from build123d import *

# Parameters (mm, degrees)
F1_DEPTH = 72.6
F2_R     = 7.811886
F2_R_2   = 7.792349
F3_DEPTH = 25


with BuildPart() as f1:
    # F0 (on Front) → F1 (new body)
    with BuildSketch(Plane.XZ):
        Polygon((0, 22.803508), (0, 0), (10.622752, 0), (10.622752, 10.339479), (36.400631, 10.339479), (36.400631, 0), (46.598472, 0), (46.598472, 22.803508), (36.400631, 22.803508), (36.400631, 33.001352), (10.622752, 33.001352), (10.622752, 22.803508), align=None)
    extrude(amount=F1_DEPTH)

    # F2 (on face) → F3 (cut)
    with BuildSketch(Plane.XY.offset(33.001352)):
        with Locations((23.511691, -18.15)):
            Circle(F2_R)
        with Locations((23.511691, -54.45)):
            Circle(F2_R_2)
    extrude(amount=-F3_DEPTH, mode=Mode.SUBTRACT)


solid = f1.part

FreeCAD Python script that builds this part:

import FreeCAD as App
import Part
import Sketcher

V = App.Vector
Q = App.Units.Quantity

doc = App.newDocument("Part")
params = doc.addObject("Spreadsheet::Sheet", "Params")
for row, (alias, value) in enumerate([
    ("pad1_length", "72.6 mm"),
    ("pocket1_length", "25 mm"),
], start=1):
    params.set(f"A{row}", alias)
    params.set(f"B{row}", "=" + value)
    params.setAlias(f"B{row}", alias)

body = doc.addObject("PartDesign::Body", "Body")

# Sketch on XZ plane
sketch1 = body.newObject("Sketcher::SketchObject", "Sketch")
sketch1.AttachmentSupport = (doc.getObject("XZ_Plane"), [""])
sketch1.MapMode = "FlatFace"
sketch1.addGeometry([
    Part.LineSegment(V(0, 22.803508, 0), V(0, 0, 0)),  # 0
    Part.LineSegment(V(0, 0, 0), V(10.622752, 0, 0)),  # 1
    Part.LineSegment(V(10.622752, 0, 0), V(10.622752, 10.339479, 0)),  # 2
    Part.LineSegment(V(10.622752, 10.339479, 0), V(36.400631, 10.339479, 0)),  # 3
    Part.LineSegment(V(36.400631, 10.339479, 0), V(36.400631, 0, 0)),  # 4
    Part.LineSegment(V(36.400631, 0, 0), V(46.598472, 0, 0)),  # 5
    Part.LineSegment(V(46.598472, 0, 0), V(46.598472, 22.803508, 0)),  # 6
    Part.LineSegment(V(46.598472, 22.803508, 0), V(36.400631, 22.803508, 0)),  # 7
    Part.LineSegment(V(36.400631, 22.803508, 0), V(36.400631, 33.001352, 0)),  # 8
    Part.LineSegment(V(36.400631, 33.001352, 0), V(10.622752, 33.001352, 0)),  # 9
    Part.LineSegment(V(10.622752, 33.001352, 0), V(10.622752, 22.803508, 0)),  # 10
    Part.LineSegment(V(10.622752, 22.803508, 0), V(0, 22.803508, 0)),  # 11
], False)
sketch1.addConstraint([
    Sketcher.Constraint("Coincident", 0, 2, 1, 1),
    Sketcher.Constraint("Coincident", 1, 2, 2, 1),
    Sketcher.Constraint("Coincident", 2, 2, 3, 1),
    Sketcher.Constraint("Coincident", 3, 2, 4, 1),
    Sketcher.Constraint("Coincident", 4, 2, 5, 1),
    Sketcher.Constraint("Coincident", 5, 2, 6, 1),
    Sketcher.Constraint("Coincident", 6, 2, 7, 1),
    Sketcher.Constraint("Coincident", 7, 2, 8, 1),
    Sketcher.Constraint("Coincident", 8, 2, 9, 1),
    Sketcher.Constraint("Coincident", 9, 2, 10, 1),
    Sketcher.Constraint("Coincident", 10, 2, 11, 1),
    Sketcher.Constraint("Coincident", 11, 2, 0, 1),
    Sketcher.Constraint("Vertical", 0),
    Sketcher.Constraint("Horizontal", 1),
    Sketcher.Constraint("Vertical", 2),
    Sketcher.Constraint("Horizontal", 3),
    Sketcher.Constraint("Vertical", 4),
    Sketcher.Constraint("Horizontal", 5),
    Sketcher.Constraint("Vertical", 6),
    Sketcher.Constraint("Horizontal", 7),
    Sketcher.Constraint("Vertical", 8),
    Sketcher.Constraint("Horizontal", 9),
    Sketcher.Constraint("Vertical", 10),
    Sketcher.Constraint("Horizontal", 11),
    Sketcher.Constraint("Coincident", 0, 2, -1, 1),
    Sketcher.Constraint("PointOnObject", 4, 2, -1),
    Sketcher.Constraint("Horizontal", 7, 2, 10, 2),
    Sketcher.Constraint("Vertical", 4, 2, 7, 2),
    Sketcher.Constraint("Vertical", 2, 2, 9, 2),
    Sketcher.Constraint("DistanceX", 3, 1, 3, 2, Q("25.777879 mm")),
    Sketcher.Constraint("DistanceX", 5, 1, 5, 2, Q("10.197841 mm")),
    Sketcher.Constraint("DistanceY", 0, 2, 0, 1, Q("22.803508 mm")),
    Sketcher.Constraint("DistanceY", 2, 1, 2, 2, Q("10.339479 mm")),
    Sketcher.Constraint("DistanceX", 1, 1, 1, 2, Q("10.622752 mm")),
    Sketcher.Constraint("DistanceY", 8, 1, 8, 2, Q("10.197844 mm")),
])
pad1 = body.newObject("PartDesign::Pad", "Pad")
pad1.Profile = sketch1
pad1.setExpression("Length", "Params.pad1_length")

# Sketch on XY plane
sketch2 = body.newObject("Sketcher::SketchObject", "Sketch001")
sketch2.AttachmentSupport = (doc.getObject("XY_Plane"), [""])
sketch2.MapMode = "FlatFace"
sketch2.AttachmentOffset = App.Placement(V(0, 0, 33.001352), App.Rotation())
sketch2.addGeometry([
    Part.Circle(V(23.511691, -18.15, 0), V(0, 0, 1), 7.811886),
    Part.Circle(V(23.511691, -54.45, 0), V(0, 0, 1), 7.792349),
], False)
sketch2.addConstraint([
    Sketcher.Constraint("Vertical", 0, 3, 1, 3),
    Sketcher.Constraint("DistanceY", 1, 3, 0, 3, Q("36.3 mm")),
    Sketcher.Constraint("DistanceY", 0, 3, -1, 1, Q("18.15 mm")),
    Sketcher.Constraint("Diameter", 0, Q("15.623772 mm")),
    Sketcher.Constraint("Diameter", 1, Q("15.584698 mm")),
    Sketcher.Constraint("DistanceX", -1, 1, 0, 3, Q("23.511691 mm")),
])
pocket1 = body.newObject("PartDesign::Pocket", "Pocket")
pocket1.Profile = sketch2
pocket1.setExpression("Length", "Params.pocket1_length")

doc.recompute()
